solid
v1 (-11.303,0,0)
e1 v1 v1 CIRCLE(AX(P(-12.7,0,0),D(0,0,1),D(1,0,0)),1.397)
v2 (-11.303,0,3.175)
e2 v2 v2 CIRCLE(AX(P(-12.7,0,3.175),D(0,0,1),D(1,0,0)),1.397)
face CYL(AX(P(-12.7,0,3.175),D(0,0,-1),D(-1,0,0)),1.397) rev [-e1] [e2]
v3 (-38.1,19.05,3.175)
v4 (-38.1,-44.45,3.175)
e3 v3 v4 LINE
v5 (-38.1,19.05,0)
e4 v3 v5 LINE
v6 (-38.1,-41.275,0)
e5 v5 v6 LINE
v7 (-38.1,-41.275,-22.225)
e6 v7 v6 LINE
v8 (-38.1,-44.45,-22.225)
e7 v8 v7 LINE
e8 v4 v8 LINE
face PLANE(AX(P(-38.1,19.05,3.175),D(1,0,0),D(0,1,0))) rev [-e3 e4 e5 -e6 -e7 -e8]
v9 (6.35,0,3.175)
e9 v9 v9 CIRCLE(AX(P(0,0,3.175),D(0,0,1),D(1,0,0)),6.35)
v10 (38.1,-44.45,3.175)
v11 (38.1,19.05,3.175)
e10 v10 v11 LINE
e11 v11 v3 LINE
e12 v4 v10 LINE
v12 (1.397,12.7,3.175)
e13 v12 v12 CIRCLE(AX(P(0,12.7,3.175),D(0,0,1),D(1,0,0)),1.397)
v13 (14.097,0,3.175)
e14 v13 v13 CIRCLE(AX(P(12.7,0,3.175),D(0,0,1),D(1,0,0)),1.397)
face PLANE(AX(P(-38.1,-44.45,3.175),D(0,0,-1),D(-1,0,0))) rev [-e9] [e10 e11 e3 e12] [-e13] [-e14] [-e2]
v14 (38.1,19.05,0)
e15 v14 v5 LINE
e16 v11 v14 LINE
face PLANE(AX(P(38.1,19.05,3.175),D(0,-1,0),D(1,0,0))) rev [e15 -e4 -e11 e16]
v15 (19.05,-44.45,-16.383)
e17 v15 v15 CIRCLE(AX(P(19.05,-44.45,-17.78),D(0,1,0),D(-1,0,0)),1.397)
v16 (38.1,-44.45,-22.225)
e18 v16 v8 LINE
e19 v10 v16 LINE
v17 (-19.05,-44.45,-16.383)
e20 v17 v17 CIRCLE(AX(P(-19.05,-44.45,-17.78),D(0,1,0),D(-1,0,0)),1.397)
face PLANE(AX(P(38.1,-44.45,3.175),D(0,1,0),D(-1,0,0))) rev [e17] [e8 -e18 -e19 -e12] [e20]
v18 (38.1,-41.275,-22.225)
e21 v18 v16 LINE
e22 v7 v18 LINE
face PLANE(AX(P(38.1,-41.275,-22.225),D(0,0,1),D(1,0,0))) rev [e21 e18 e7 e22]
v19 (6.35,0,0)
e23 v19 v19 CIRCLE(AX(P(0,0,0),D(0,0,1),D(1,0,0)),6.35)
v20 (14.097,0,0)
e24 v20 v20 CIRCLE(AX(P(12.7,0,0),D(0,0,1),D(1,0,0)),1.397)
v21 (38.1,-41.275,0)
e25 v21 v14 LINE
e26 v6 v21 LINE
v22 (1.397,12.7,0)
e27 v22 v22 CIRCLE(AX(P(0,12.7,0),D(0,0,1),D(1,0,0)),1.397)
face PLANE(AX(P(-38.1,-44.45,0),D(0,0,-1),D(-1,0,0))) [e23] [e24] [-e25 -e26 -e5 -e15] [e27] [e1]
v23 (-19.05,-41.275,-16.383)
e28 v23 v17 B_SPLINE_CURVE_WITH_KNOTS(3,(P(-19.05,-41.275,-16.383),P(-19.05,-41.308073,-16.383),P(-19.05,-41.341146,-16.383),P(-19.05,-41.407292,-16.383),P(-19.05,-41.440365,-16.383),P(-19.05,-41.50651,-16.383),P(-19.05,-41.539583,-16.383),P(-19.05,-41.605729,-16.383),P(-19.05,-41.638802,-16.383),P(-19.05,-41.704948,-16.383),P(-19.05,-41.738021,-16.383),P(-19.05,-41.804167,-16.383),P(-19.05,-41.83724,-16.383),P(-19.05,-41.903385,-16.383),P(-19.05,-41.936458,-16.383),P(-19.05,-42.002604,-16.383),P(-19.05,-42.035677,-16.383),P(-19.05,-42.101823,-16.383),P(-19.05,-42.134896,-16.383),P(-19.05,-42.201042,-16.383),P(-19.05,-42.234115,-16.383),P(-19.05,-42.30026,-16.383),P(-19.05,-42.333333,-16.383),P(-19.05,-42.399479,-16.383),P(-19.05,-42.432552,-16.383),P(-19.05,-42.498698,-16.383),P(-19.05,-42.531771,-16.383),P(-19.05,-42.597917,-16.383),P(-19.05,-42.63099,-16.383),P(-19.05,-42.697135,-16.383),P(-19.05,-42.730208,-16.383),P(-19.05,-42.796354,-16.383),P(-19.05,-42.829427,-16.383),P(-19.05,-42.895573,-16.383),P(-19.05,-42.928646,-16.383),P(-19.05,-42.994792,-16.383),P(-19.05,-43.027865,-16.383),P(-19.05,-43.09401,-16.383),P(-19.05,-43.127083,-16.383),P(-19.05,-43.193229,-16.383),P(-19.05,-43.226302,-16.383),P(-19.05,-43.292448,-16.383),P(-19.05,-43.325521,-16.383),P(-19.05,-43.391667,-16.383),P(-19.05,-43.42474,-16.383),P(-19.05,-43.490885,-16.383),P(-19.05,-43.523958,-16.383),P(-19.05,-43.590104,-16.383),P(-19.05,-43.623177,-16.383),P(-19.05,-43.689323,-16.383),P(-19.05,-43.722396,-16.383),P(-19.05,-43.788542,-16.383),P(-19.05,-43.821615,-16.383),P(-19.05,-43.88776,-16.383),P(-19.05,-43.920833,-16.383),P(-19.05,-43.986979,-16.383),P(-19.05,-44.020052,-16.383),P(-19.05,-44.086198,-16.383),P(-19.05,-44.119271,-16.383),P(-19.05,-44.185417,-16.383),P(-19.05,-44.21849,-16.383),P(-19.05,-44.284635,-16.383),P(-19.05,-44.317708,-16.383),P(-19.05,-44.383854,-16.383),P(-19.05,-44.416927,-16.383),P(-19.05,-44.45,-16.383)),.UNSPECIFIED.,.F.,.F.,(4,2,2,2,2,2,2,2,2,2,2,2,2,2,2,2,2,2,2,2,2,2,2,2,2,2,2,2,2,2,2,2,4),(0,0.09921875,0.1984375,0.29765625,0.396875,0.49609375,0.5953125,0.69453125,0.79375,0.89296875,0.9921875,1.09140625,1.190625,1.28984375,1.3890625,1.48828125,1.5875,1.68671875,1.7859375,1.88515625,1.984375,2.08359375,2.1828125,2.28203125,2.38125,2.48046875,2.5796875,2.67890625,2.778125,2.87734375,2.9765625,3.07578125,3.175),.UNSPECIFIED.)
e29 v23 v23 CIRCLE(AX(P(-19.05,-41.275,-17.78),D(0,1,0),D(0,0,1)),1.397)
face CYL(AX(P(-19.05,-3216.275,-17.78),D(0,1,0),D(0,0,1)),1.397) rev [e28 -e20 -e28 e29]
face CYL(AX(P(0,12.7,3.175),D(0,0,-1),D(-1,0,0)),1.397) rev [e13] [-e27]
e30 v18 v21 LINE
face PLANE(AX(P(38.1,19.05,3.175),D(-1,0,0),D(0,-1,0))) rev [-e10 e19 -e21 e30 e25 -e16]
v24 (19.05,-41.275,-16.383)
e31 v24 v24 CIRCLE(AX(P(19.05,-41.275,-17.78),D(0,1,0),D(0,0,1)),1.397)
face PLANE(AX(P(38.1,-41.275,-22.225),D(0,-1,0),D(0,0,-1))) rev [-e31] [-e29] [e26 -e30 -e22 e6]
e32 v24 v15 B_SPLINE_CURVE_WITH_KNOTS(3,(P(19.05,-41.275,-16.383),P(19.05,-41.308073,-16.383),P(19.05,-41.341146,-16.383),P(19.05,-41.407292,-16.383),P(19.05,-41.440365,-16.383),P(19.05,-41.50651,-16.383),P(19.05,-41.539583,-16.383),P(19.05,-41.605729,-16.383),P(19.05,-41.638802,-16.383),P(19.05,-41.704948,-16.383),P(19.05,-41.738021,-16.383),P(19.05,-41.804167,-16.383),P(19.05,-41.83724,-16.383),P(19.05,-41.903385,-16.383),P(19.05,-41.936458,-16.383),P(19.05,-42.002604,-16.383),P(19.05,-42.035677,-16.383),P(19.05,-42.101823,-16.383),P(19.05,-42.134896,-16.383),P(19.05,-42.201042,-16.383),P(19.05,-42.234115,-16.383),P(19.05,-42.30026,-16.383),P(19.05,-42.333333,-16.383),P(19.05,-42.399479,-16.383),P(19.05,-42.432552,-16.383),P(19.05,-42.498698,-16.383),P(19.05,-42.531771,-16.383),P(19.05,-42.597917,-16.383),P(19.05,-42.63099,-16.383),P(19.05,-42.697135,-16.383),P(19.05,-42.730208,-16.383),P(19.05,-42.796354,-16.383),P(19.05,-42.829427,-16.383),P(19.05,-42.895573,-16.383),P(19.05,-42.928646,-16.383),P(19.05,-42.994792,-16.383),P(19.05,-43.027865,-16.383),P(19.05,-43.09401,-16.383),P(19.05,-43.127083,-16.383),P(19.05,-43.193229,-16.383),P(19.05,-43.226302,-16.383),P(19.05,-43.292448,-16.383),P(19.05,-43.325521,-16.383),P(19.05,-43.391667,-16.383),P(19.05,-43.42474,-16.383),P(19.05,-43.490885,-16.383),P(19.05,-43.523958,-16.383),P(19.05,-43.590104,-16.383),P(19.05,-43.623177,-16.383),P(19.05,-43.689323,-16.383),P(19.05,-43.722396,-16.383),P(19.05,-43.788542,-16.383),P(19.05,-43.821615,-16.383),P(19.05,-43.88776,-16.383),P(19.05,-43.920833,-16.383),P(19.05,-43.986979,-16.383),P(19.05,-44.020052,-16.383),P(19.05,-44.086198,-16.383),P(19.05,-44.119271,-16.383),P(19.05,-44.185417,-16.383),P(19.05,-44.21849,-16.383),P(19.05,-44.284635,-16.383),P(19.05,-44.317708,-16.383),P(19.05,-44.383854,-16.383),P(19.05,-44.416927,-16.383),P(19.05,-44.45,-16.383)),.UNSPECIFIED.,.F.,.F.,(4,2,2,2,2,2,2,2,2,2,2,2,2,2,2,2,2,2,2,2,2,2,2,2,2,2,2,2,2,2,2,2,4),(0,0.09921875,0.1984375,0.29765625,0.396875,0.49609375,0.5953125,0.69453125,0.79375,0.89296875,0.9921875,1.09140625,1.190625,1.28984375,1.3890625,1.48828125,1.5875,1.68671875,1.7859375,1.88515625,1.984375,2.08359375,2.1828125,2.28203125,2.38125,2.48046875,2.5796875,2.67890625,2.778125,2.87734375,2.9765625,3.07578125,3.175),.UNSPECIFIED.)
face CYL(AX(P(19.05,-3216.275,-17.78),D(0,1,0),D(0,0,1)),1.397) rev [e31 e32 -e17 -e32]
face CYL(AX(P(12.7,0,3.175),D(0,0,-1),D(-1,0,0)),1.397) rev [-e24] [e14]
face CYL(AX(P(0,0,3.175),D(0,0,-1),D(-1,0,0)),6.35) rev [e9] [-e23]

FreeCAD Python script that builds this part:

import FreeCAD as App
import Part
import Sketcher
from FreeCAD import Vector
Q = App.Units.Quantity

doc = App.newDocument("Part")
params = doc.addObject("Spreadsheet::Sheet", "Params")
for row, (alias, value) in enumerate([
    ("sketch1_diameter", "0.5 in"),
    ("sketch1_diameter2", "0.11 in"),
    ("sketch1_width", "3 in"),
    ("sketch1_height", "2.5 in"),
    ("pad1_length", "0.125 in"),
    ("sketch2_width", "3 in"),
    ("sketch2_height", "0.125 in"),
    ("pad2_length", "0.875 in"),
    ("sketch3_diameter", "0.11 in"),
    ("pocket1_length", "125 in"),
], start=1):
    params.set(f"A{row}", alias)
    params.set(f"B{row}", "=" + value)
    params.setAlias(f"B{row}", alias)

body = doc.addObject("PartDesign::Body", "Body")

# Sketch on XY plane
sketch1 = doc.addObject("Sketcher::SketchObject", "Sketch")
body.addObject(sketch1)
sketch1.AttachmentSupport = (doc.XY_Plane, [""])
sketch1.MapMode = "FlatFace"
sketch1.addGeometry(Part.LineSegment(Vector(-38.1, 19.05, 0), Vector(-38.1, -44.45, 0)), False)
sketch1.addGeometry(Part.LineSegment(Vector(-38.1, -44.45, 0), Vector(38.1, -44.45, 0)), False)
sketch1.addGeometry(Part.LineSegment(Vector(38.1, -44.45, 0), Vector(38.1, 19.05, 0)), False)
sketch1.addGeometry(Part.LineSegment(Vector(38.1, 19.05, 0), Vector(-38.1, 19.05, 0)), False)
sketch1.addGeometry(Part.Circle(Vector(-12.7, 0, 0), Vector(0, 0, 1), 1.397), False)
sketch1.addGeometry(Part.Circle(Vector(0, 0, 0), Vector(0, 0, 1), 6.35), False)
sketch1.addGeometry(Part.Circle(Vector(12.7, 0, 0), Vector(0, 0, 1), 1.397), False)
sketch1.addGeometry(Part.Circle(Vector(0, 12.7, 0), Vector(0, 0, 1), 1.397), False)
sketch1.addConstraint(Sketcher.Constraint("Coincident", 0, 2, 1, 1))
sketch1.addConstraint(Sketcher.Constraint("Coincident", 1, 2, 2, 1))
sketch1.addConstraint(Sketcher.Constraint("Coincident", 2, 2, 3, 1))
sketch1.addConstraint(Sketcher.Constraint("Coincident", 3, 2, 0, 1))
sketch1.addConstraint(Sketcher.Constraint("Vertical", 0))
sketch1.addConstraint(Sketcher.Constraint("Horizontal", 1))
sketch1.addConstraint(Sketcher.Constraint("Vertical", 2))
sketch1.addConstraint(Sketcher.Constraint("Horizontal", 3))
sketch1.addConstraint(Sketcher.Constraint("Coincident", 5, 3, -1, 1))
sketch1.addConstraint(Sketcher.Constraint("Equal", 4, 6))
sketch1.addConstraint(Sketcher.Constraint("Equal", 6, 7))
sketch1.addConstraint(Sketcher.Constraint("Symmetric", 4, 3, 6, 3, -1, 1))
sketch1.addConstraint(Sketcher.Constraint("PointOnObject", 4, 3, -1))
sketch1.addConstraint(Sketcher.Constraint("PointOnObject", 7, 3, -2))
sketch1.addConstraint(Sketcher.Constraint("Diameter", 5, Q("0.5 in")))
sketch1.addConstraint(Sketcher.Constraint("Diameter", 4, Q("0.11 in")))
sketch1.addConstraint(Sketcher.Constraint("DistanceX", 1, 1, 1, 2, Q("3 in")))
sketch1.addConstraint(Sketcher.Constraint("DistanceY", 0, 2, 0, 1, Q("2.5 in")))
sketch1.addConstraint(Sketcher.Constraint("DistanceX", 4, 3, 6, 3, Q("1 in")))
sketch1.addConstraint(Sketcher.Constraint("DistanceX", 0, 2, 4, 3, Q("1 in")))
sketch1.addConstraint(Sketcher.Constraint("DistanceY", -1, 1, 7, 3, Q("0.5 in")))
sketch1.addConstraint(Sketcher.Constraint("DistanceY", 0, 2, -1, 1, Q("1.75 in")))
sketch1.setExpression("Constraints[14]", "Params.sketch1_diameter")
sketch1.setExpression("Constraints[15]", "Params.sketch1_diameter2")
sketch1.setExpression("Constraints[16]", "Params.sketch1_width")
sketch1.setExpression("Constraints[17]", "Params.sketch1_height")
pad1 = doc.addObject("PartDesign::Pad", "Pad")
body.addObject(pad1)
pad1.Profile = sketch1
pad1.setExpression("Length", "Params.pad1_length")

# Sketch on XY plane
sketch2 = doc.addObject("Sketcher::SketchObject", "Sketch001")
body.addObject(sketch2)
sketch2.AttachmentSupport = (doc.XY_Plane, [""])
sketch2.MapMode = "FlatFace"
sketch2.addGeometry(Part.LineSegment(Vector(38.1, -41.275, 0), Vector(38.1, -44.45, 0)), False)
sketch2.addGeometry(Part.LineSegment(Vector(38.1, -44.45, 0), Vector(-38.1, -44.45, 0)), False)
sketch2.addGeometry(Part.LineSegment(Vector(-38.1, -44.45, 0), Vector(-38.1, -41.275, 0)), False)
sketch2.addGeometry(Part.LineSegment(Vector(-38.1, -41.275, 0), Vector(38.1, -41.275, 0)), False)
sketch2.addConstraint(Sketcher.Constraint("Coincident", 0, 2, 1, 1))
sketch2.addConstraint(Sketcher.Constraint("Coincident", 1, 2, 2, 1))
sketch2.addConstraint(Sketcher.Constraint("Coincident", 2, 2, 3, 1))
sketch2.addConstraint(Sketcher.Constraint("Coincident", 3, 2, 0, 1))
sketch2.addConstraint(Sketcher.Constraint("Vertical", 0))
sketch2.addConstraint(Sketcher.Constraint("Horizontal", 1))
sketch2.addConstraint(Sketcher.Constraint("Vertical", 2))
sketch2.addConstraint(Sketcher.Constraint("Horizontal", 3))
sketch2.addConstraint(Sketcher.Constraint("DistanceX", 1, 2, 1, 1, Q("3 in")))
sketch2.addConstraint(Sketcher.Constraint("DistanceX", -1, 1, 0, 2, Q("1.5 in")))
sketch2.addConstraint(Sketcher.Constraint("DistanceY", 0, 2, 0, 1, Q("0.125 in")))
sketch2.addConstraint(Sketcher.Constraint("DistanceY", 0, 2, -1, 1, Q("1.75 in")))
sketch2.setExpression("Constraints[8]", "Params.sketch2_width")
sketch2.setExpression("Constraints[10]", "Params.sketch2_height")
pad2 = doc.addObject("PartDesign::Pad", "Pad001")
body.addObject(pad2)
pad2.Profile = sketch2
pad2.setExpression("Length", "Params.pad2_length")
pad2.Reversed = True

# Sketch on XZ plane
sketch3 = doc.addObject("Sketcher::SketchObject", "Sketch002")
body.addObject(sketch3)
sketch3.AttachmentSupport = (doc.XZ_Plane, [""])
sketch3.MapMode = "FlatFace"
sketch3.AttachmentOffset = App.Placement(Vector(0, 0, 1.625 * 25.4), App.Rotation())
sketch3.addGeometry(Part.Circle(Vector(-19.05, -17.78, 0), Vector(0, 0, 1), 1.397), False)
sketch3.addGeometry(Part.Circle(Vector(19.05, -17.78, 0), Vector(0, 0, 1), 1.397), False)
sketch3.addConstraint(Sketcher.Constraint("Equal", 0, 1))
sketch3.addConstraint(Sketcher.Constraint("Symmetric", 0, 3, 1, 3, -2))
sketch3.addConstraint(Sketcher.Constraint("Diameter", 0, Q("0.11 in")))
sketch3.addConstraint(Sketcher.Constraint("DistanceY", 0, 3, -1, 1, Q("0.7 in")))
sketch3.addConstraint(Sketcher.Constraint("DistanceX", 0, 3, 1, 3, Q("1.5 in")))
sketch3.setExpression("Constraints[2]", "Params.sketch3_diameter")
pocket1 = doc.addObject("PartDesign::Pocket", "Pocket")
body.addObject(pocket1)
pocket1.Profile = sketch3
pocket1.setExpression("Length", "Params.pocket1_length")
pocket1.Reversed = True

doc.recompute()
